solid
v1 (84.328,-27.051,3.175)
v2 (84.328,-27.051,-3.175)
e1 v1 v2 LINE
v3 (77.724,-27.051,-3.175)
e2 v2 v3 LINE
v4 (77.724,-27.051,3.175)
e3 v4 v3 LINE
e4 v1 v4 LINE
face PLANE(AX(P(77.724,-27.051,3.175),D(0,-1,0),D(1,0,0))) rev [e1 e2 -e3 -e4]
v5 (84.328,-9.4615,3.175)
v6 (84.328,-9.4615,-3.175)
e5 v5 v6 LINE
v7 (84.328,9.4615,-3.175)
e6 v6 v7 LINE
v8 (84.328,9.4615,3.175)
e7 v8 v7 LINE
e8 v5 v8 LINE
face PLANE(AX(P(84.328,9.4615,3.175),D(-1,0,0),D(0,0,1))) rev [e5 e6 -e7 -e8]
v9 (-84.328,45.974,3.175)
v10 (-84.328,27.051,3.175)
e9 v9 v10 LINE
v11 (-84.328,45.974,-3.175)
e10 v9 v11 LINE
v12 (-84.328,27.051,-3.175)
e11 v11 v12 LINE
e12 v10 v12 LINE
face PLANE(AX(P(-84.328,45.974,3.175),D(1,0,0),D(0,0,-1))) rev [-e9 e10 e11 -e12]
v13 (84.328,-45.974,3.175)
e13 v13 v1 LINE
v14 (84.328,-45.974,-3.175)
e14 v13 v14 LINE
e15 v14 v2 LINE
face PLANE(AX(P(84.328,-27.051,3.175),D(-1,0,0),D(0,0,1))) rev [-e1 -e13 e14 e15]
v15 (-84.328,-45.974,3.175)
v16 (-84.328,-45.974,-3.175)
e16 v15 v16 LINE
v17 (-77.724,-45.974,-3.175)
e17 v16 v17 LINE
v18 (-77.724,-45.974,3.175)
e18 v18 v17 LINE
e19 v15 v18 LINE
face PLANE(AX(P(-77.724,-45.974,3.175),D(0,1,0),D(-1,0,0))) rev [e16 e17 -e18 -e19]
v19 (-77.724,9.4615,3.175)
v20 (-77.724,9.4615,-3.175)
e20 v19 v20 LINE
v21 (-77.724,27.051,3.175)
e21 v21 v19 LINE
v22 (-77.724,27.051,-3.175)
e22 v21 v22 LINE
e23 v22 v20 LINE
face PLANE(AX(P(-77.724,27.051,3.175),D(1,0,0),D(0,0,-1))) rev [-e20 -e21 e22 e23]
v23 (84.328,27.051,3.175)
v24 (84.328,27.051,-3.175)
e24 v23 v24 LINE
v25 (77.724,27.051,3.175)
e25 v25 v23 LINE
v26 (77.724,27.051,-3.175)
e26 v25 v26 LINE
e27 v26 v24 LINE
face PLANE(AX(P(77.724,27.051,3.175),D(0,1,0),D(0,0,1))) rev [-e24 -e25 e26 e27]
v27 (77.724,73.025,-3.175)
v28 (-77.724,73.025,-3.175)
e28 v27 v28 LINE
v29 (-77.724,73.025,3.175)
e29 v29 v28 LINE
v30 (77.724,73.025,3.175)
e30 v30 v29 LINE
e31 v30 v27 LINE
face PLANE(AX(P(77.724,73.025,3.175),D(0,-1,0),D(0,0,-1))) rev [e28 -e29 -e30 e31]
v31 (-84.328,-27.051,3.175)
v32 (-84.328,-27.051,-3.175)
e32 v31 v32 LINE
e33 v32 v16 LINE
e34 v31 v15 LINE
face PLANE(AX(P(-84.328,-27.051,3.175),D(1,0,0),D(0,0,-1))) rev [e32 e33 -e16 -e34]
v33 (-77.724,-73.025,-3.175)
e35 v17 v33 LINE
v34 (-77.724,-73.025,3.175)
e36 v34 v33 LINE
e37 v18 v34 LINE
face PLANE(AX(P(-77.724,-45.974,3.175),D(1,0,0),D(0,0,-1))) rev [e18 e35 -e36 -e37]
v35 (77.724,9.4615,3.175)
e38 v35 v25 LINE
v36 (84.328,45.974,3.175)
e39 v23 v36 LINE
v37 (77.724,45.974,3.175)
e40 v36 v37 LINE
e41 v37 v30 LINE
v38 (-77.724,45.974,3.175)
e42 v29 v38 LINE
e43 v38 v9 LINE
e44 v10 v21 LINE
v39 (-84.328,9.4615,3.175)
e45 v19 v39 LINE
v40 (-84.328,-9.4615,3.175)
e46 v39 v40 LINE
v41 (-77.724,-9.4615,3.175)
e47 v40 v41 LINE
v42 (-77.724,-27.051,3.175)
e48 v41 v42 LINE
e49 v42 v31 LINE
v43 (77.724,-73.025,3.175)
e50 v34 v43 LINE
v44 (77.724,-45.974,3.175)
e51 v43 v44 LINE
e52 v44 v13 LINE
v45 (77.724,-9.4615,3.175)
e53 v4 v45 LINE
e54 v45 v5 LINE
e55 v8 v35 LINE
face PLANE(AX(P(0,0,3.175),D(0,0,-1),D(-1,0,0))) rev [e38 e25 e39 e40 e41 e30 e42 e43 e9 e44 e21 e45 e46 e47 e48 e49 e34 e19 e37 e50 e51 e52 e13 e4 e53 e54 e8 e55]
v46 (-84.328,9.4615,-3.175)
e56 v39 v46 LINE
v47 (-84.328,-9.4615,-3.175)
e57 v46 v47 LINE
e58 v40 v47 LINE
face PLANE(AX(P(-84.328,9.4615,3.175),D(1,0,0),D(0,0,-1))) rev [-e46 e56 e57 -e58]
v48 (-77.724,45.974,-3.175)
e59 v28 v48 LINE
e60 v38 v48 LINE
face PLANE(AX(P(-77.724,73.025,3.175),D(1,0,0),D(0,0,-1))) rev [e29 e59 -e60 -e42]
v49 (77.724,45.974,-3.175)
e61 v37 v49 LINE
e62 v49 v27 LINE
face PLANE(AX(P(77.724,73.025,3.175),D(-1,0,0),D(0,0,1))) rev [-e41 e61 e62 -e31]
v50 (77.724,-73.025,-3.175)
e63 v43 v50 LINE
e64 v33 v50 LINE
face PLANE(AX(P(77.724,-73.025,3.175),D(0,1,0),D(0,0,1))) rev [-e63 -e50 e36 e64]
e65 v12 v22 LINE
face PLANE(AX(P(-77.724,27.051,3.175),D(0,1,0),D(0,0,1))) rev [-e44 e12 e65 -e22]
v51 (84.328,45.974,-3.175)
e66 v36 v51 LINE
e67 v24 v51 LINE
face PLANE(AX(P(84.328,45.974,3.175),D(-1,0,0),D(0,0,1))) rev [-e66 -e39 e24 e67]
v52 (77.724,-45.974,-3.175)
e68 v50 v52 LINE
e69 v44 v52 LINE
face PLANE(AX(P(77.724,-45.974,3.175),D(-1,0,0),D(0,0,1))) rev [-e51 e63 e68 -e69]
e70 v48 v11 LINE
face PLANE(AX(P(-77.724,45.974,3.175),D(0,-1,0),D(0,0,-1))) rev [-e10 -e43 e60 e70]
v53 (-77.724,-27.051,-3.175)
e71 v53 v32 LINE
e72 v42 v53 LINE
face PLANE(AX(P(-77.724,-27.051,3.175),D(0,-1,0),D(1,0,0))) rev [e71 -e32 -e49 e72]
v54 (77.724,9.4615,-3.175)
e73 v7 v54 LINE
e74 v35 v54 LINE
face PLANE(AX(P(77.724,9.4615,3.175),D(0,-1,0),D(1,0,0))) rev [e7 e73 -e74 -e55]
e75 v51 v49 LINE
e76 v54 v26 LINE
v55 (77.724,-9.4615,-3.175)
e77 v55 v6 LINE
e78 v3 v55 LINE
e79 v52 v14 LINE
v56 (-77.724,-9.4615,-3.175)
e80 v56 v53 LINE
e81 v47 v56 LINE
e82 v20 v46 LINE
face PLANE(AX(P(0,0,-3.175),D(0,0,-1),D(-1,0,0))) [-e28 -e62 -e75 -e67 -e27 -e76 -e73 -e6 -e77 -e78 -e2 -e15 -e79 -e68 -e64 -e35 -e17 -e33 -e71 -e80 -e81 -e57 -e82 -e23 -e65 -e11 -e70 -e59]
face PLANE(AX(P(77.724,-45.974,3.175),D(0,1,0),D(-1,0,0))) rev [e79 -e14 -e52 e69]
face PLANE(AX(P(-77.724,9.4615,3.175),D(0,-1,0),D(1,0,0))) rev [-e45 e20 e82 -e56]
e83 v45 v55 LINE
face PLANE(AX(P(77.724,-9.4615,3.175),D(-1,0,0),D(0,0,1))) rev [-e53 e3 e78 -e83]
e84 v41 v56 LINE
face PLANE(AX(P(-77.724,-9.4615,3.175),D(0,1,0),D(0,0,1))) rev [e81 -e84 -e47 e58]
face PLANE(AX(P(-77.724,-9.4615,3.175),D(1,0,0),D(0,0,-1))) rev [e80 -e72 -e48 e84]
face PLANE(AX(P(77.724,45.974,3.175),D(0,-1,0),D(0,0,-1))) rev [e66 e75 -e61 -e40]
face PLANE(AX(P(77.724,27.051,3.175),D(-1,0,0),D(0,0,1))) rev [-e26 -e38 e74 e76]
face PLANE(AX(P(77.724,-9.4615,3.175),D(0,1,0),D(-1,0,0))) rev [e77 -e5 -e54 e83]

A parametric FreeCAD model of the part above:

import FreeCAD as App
import Part
import Sketcher

V = App.Vector
Q = App.Units.Quantity


def add_polygon(sketch, points):
    """Adds a closed chain of lines whose ends are joined by coincident constraints."""
    first, n = sketch.GeometryCount, len(points)
    for a, b in zip(points, points[1:] + points[:1]):
        sketch.addGeometry(Part.LineSegment(App.Vector(*a, 0), App.Vector(*b, 0)), False)
    for i in range(n):
        sketch.addConstraint(Sketcher.Constraint("Coincident", first + i, 2, first + (i + 1) % n, 1))

doc = App.newDocument("Part")
body = doc.addObject("PartDesign::Body", "Body")

sketch1 = body.newObject("Sketcher::SketchObject", "Sketch")
sketch1.AttachmentSupport = (doc.getObject("XY_Plane"), [""])
sketch1.MapMode = "FlatFace"
add_polygon(sketch1, [(78, 73), (-78, 73), (-78, 46), (-84, 46), (-84, 27), (-78, 27), (-78, 9), (-84, 9), (-84, -9), (-78, -9), (-78, -27), (-84, -27), (-84, -46), (-78, -46), (-78, -73), (78, -73), (78, -46), (84, -46), (84, -27), (78, -27), (78, -9), (84, -9), (84, 9), (78, 9), (78, 27), (84, 27), (84, 46), (78, 46)])
sketch1.addConstraint([
    Sketcher.Constraint("Horizontal", 0),
    Sketcher.Constraint("Vertical", 1),
    Sketcher.Constraint("Horizontal", 2),
    Sketcher.Constraint("Vertical", 3),
    Sketcher.Constraint("Horizontal", 4),
    Sketcher.Constraint("Vertical", 5),
    Sketcher.Constraint("Horizontal", 6),
    Sketcher.Constraint("Vertical", 7),
    Sketcher.Constraint("Horizontal", 8),
    Sketcher.Constraint("Vertical", 9),
    Sketcher.Constraint("Horizontal", 10),
    Sketcher.Constraint("Vertical", 11),
    Sketcher.Constraint("Horizontal", 12),
    Sketcher.Constraint("Vertical", 13),
    Sketcher.Constraint("Horizontal", 14),
    Sketcher.Constraint("Vertical", 15),
    Sketcher.Constraint("Horizontal", 16),
    Sketcher.Constraint("Vertical", 17),
    Sketcher.Constraint("Horizontal", 18),
    Sketcher.Constraint("Vertical", 19),
    Sketcher.Constraint("Horizontal", 20),
    Sketcher.Constraint("Vertical", 21),
    Sketcher.Constraint("Horizontal", 22),
    Sketcher.Constraint("Vertical", 23),
    Sketcher.Constraint("Horizontal", 24),
    Sketcher.Constraint("Vertical", 25),
    Sketcher.Constraint("Horizontal", 26),
    Sketcher.Constraint("Vertical", 27),
    Sketcher.Constraint("Symmetric", 0, 2, 14, 2, -1, 1),
    Sketcher.Constraint("Symmetric", 2, 2, 16, 2, -1, 1),
    Sketcher.Constraint("Symmetric", 4, 2, 18, 2, -1, 1),
    Sketcher.Constraint("Symmetric", 6, 2, 20, 2, -1, 1),
    Sketcher.Constraint("Symmetric", 8, 2, 22, 2, -1, 1),
    Sketcher.Constraint("Symmetric", 10, 2, 24, 2, -1, 1),
    Sketcher.Constraint("Symmetric", 12, 2, 26, 2, -1, 1),
    Sketcher.Constraint("Symmetric", 12, 2, 15, 2, -2),
    Sketcher.Constraint("Symmetric", 10, 2, 17, 2, -2),
    Sketcher.Constraint("Symmetric", 8, 2, 19, 2, -2),
    Sketcher.Constraint("Vertical", 1, 2, 4, 2),
    Sketcher.Constraint("Vertical", 3, 2, 6, 2),
    Sketcher.Constraint("Equal", 3, 7),
    Sketcher.Constraint("DistanceX", 0, 2, 0, 1, Q("6.12 in")),
    Sketcher.Constraint("DistanceX", 2, 2, 2, 1, Q("0.26 in")),
    Sketcher.Constraint("DistanceY", 1, 2, 1, 1, Q("1.065 in")),
    Sketcher.Constraint("DistanceY", 3, 2, 3, 1, Q("0.745 in")),
    Sketcher.Constraint("DistanceY", -1, 1, 1, 2, Q("1.81 in")),
])
pad1 = body.newObject("PartDesign::Pad", "Pad")
pad1.Profile = sketch1
pad1.Length = Q("0.25 in")
pad1.Midplane = True

doc.recompute()
